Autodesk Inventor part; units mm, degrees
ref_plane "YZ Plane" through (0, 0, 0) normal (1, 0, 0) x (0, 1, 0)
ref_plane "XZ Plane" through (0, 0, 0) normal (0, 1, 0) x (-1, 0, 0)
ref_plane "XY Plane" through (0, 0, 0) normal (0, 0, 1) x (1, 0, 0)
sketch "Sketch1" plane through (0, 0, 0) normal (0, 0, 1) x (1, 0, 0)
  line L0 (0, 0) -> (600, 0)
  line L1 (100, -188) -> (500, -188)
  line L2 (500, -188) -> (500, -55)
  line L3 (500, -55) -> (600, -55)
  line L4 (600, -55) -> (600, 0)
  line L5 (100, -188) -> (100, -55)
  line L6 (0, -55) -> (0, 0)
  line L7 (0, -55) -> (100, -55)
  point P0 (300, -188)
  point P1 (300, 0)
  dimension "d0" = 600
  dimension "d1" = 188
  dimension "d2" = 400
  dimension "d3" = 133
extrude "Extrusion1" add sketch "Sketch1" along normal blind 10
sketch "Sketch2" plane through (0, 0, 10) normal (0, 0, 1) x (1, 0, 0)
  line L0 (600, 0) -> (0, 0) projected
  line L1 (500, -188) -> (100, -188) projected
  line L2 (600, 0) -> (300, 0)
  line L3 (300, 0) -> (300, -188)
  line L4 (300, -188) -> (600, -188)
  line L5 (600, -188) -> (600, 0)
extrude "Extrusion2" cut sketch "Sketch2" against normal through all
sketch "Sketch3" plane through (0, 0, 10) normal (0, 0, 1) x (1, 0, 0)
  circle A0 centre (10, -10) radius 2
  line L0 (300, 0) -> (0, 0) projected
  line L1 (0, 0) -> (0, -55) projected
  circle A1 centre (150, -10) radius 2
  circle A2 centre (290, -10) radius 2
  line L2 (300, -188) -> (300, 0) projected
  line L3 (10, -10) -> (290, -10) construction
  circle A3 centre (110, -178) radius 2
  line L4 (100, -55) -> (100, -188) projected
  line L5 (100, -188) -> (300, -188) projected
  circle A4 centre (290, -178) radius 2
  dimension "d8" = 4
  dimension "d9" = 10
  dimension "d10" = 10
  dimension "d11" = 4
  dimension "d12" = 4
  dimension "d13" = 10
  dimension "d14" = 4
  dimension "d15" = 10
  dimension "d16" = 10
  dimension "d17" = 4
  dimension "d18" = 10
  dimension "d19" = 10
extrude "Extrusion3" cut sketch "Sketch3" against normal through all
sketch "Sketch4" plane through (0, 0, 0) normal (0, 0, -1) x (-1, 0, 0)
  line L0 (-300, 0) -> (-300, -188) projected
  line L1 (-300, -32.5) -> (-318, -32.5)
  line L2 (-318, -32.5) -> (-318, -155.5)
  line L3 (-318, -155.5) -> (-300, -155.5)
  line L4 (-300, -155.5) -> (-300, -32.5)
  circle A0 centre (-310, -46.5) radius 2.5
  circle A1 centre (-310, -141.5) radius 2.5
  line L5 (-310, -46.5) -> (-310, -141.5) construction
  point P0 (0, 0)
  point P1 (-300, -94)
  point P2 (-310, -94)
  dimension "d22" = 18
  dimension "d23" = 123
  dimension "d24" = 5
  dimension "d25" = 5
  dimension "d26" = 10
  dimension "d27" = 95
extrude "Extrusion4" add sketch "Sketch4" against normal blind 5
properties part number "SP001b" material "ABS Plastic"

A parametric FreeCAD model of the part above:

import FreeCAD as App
import Part
import Sketcher

doc = App.newDocument("Part")
params = doc.addObject("Spreadsheet::Sheet", "Params")
for row, (alias, value) in enumerate([
    ("sketch1_width", "600 mm"),
    ("sketch1_width2", "400 mm"),
    ("sketch1_height", "133 mm"),
    ("pad1_length", "10 mm"),
    ("sketch2_width", "300 mm"),
    ("sketch2_height", "188 mm"),
    ("sketch3_diameter", "4 mm"),
    ("sketch4_diameter", "5 mm"),
    ("sketch4_width", "18 mm"),
    ("sketch4_height", "123 mm"),
    ("pad2_length", "5 mm"),
], start=1):
    params.set(f"A{row}", alias)
    params.set(f"B{row}", "=" + value)
    params.setAlias(f"B{row}", alias)

body = doc.addObject("PartDesign::Body", "Body")

# Sketch on XY plane
sketch1 = body.newObject("Sketcher::SketchObject", "Sketch")
sketch1.AttachmentSupport = (doc.getObject("XY_Plane"), [""])
sketch1.MapMode = "FlatFace"
sketch1.addGeometry([
    Part.LineSegment(App.Vector(600, 0, 0), App.Vector(0, 0, 0)),  # 0
    Part.LineSegment(App.Vector(0, 0, 0), App.Vector(0, -55, 0)),  # 1
    Part.LineSegment(App.Vector(0, -55, 0), App.Vector(100, -55, 0)),  # 2
    Part.LineSegment(App.Vector(100, -55, 0), App.Vector(100, -188, 0)),  # 3
    Part.LineSegment(App.Vector(100, -188, 0), App.Vector(500, -188, 0)),  # 4
    Part.LineSegment(App.Vector(500, -188, 0), App.Vector(500, -55, 0)),  # 5
    Part.LineSegment(App.Vector(500, -55, 0), App.Vector(600, -55, 0)),  # 6
    Part.LineSegment(App.Vector(600, -55, 0), App.Vector(600, 0, 0)),  # 7
], False)
sketch1.addConstraint([
    Sketcher.Constraint("Coincident", 0, 2, 1, 1),
    Sketcher.Constraint("Coincident", 1, 2, 2, 1),
    Sketcher.Constraint("Coincident", 2, 2, 3, 1),
    Sketcher.Constraint("Coincident", 3, 2, 4, 1),
    Sketcher.Constraint("Coincident", 4, 2, 5, 1),
    Sketcher.Constraint("Coincident", 5, 2, 6, 1),
    Sketcher.Constraint("Coincident", 6, 2, 7, 1),
    Sketcher.Constraint("Coincident", 7, 2, 0, 1),
    Sketcher.Constraint("Horizontal", 0),
    Sketcher.Constraint("Vertical", 1),
    Sketcher.Constraint("Horizontal", 2),
    Sketcher.Constraint("Vertical", 3),
    Sketcher.Constraint("Horizontal", 4),
    Sketcher.Constraint("Vertical", 5),
    Sketcher.Constraint("Horizontal", 6),
    Sketcher.Constraint("Vertical", 7),
    Sketcher.Constraint("Coincident", 0, 2, -1, 1),
    Sketcher.Constraint("Horizontal", 2, 2, 5, 2),
    Sketcher.Constraint("Equal", 2, 6),
    Sketcher.Constraint("DistanceX", 0, 2, 0, 1, 600.0),
    Sketcher.Constraint("DistanceX", 4, 1, 4, 2, 400.0),
    Sketcher.Constraint("DistanceY", 3, 2, 3, 1, 133.0),
    Sketcher.Constraint("DistanceY", 3, 2, -1, 1, 188.0),
])
sketch1.setExpression("Constraints[19]", "Params.sketch1_width")
sketch1.setExpression("Constraints[20]", "Params.sketch1_width2")
sketch1.setExpression("Constraints[21]", "Params.sketch1_height")
pad1 = body.newObject("PartDesign::Pad", "Pad")
pad1.Profile = sketch1
pad1.setExpression("Length", "Params.pad1_length")

# Sketch on XY plane
sketch2 = body.newObject("Sketcher::SketchObject", "Sketch001")
sketch2.AttachmentSupport = (doc.getObject("XY_Plane"), [""])
sketch2.MapMode = "FlatFace"
sketch2.AttachmentOffset = App.Placement(App.Vector(0, 0, 10), App.Rotation())
sketch2.addGeometry([
    Part.LineSegment(App.Vector(600, -188, 0), App.Vector(600, 0, 0)),
    Part.LineSegment(App.Vector(600, 0, 0), App.Vector(300, 0, 0)),
    Part.LineSegment(App.Vector(300, 0, 0), App.Vector(300, -188, 0)),
    Part.LineSegment(App.Vector(300, -188, 0), App.Vector(600, -188, 0)),
], False)
sketch2.addConstraint([
    Sketcher.Constraint("Coincident", 0, 2, 1, 1),
    Sketcher.Constraint("Coincident", 1, 2, 2, 1),
    Sketcher.Constraint("Coincident", 2, 2, 3, 1),
    Sketcher.Constraint("Coincident", 3, 2, 0, 1),
    Sketcher.Constraint("Vertical", 0),
    Sketcher.Constraint("Horizontal", 1),
    Sketcher.Constraint("Vertical", 2),
    Sketcher.Constraint("Horizontal", 3),
    Sketcher.Constraint("PointOnObject", 0, 2, -1),
    Sketcher.Constraint("DistanceX", 1, 2, 1, 1, 300.0),
    Sketcher.Constraint("DistanceY", 0, 1, 0, 2, 188.0),
    Sketcher.Constraint("DistanceX", -1, 1, 0, 2, 600.0),
])
sketch2.setExpression("Constraints[9]", "Params.sketch2_width")
sketch2.setExpression("Constraints[10]", "Params.sketch2_height")
pocket1 = body.newObject("PartDesign::Pocket", "Pocket")
pocket1.Profile = sketch2
pocket1.Type = "ThroughAll"

# Sketch on XY plane
sketch3 = body.newObject("Sketcher::SketchObject", "Sketch002")
sketch3.AttachmentSupport = (doc.getObject("XY_Plane"), [""])
sketch3.MapMode = "FlatFace"
sketch3.AttachmentOffset = App.Placement(App.Vector(0, 0, 10), App.Rotation())
sketch3.addGeometry([
    Part.Circle(App.Vector(10, -10, 0), App.Vector(0, 0, 1), 2),  # 0
    Part.Circle(App.Vector(150, -10, 0), App.Vector(0, 0, 1), 2),  # 1
    Part.Circle(App.Vector(290, -10, 0), App.Vector(0, 0, 1), 2),  # 2
    Part.Circle(App.Vector(110, -178, 0), App.Vector(0, 0, 1), 2),  # 3
    Part.Circle(App.Vector(290, -178, 0), App.Vector(0, 0, 1), 2),  # 4
], False)
sketch3.addConstraint([
    Sketcher.Constraint("Equal", 0, 1),
    Sketcher.Constraint("Equal", 1, 2),
    Sketcher.Constraint("Equal", 2, 3),
    Sketcher.Constraint("Equal", 3, 4),
    Sketcher.Constraint("Horizontal", 0, 3, 1, 3),
    Sketcher.Constraint("Horizontal", 1, 3, 2, 3),
    Sketcher.Constraint("Horizontal", 3, 3, 4, 3),
    Sketcher.Constraint("Vertical", 2, 3, 4, 3),
    Sketcher.Constraint("Diameter", 0, 4.0),
    Sketcher.Constraint("DistanceX", -1, 1, 0, 3, 10.0),
    Sketcher.Constraint("DistanceY", 0, 3, -1, 1, 10.0),
    Sketcher.Constraint("DistanceX", -1, 1, 1, 3, 150.0),
    Sketcher.Constraint("DistanceX", -1, 1, 2, 3, 290.0),
    Sketcher.Constraint("DistanceX", -1, 1, 3, 3, 110.0),
    Sketcher.Constraint("DistanceY", 3, 3, -1, 1, 178.0),
])
sketch3.setExpression("Constraints[8]", "Params.sketch3_diameter")
pocket2 = body.newObject("PartDesign::Pocket", "Pocket001")
pocket2.Profile = sketch3
pocket2.Type = "ThroughAll"

# Sketch on XY plane
sketch4 = body.newObject("Sketcher::SketchObject", "Sketch003")
sketch4.AttachmentSupport = (doc.getObject("XY_Plane"), [""])
sketch4.MapMode = "FlatFace"
sketch4.addGeometry([
    Part.LineSegment(App.Vector(300, -155.5, 0), App.Vector(300, -32.5, 0)),  # 0
    Part.LineSegment(App.Vector(300, -32.5, 0), App.Vector(318, -32.5, 0)),  # 1
    Part.LineSegment(App.Vector(318, -32.5, 0), App.Vector(318, -155.5, 0)),  # 2
    Part.LineSegment(App.Vector(318, -155.5, 0), App.Vector(300, -155.5, 0)),  # 3
    Part.Circle(App.Vector(310, -141.5, 0), App.Vector(0, 0, 1), 2.5),  # 4
    Part.Circle(App.Vector(310, -46.5, 0), App.Vector(0, 0, 1), 2.5),  # 5
], False)
sketch4.addConstraint([
    Sketcher.Constraint("Coincident", 0, 2, 1, 1),
    Sketcher.Constraint("Coincident", 1, 2, 2, 1),
    Sketcher.Constraint("Coincident", 2, 2, 3, 1),
    Sketcher.Constraint("Coincident", 3, 2, 0, 1),
    Sketcher.Constraint("Vertical", 0),
    Sketcher.Constraint("Horizontal", 1),
    Sketcher.Constraint("Vertical", 2),
    Sketcher.Constraint("Horizontal", 3),
    Sketcher.Constraint("Equal", 4, 5),
    Sketcher.Constraint("Vertical", 4, 3, 5, 3),
    Sketcher.Constraint("Diameter", 4, 5.0),
    Sketcher.Constraint("DistanceX", 1, 1, 1, 2, 18.0),
    Sketcher.Constraint("DistanceY", 0, 1, 0, 2, 123.0),
    Sketcher.Constraint("DistanceY", 4, 3, 5, 3, 95.0),
    Sketcher.Constraint("DistanceX", 0, 2, 5, 3, 10.0),
    Sketcher.Constraint("DistanceX", -1, 1, 4, 3, 310.0),
    Sketcher.Constraint("DistanceY", 5, 3, 0, 2, 14.0),
    Sketcher.Constraint("DistanceY", 4, 3, -1, 1, 141.5),
])
sketch4.setExpression("Constraints[10]", "Params.sketch4_diameter")
sketch4.setExpression("Constraints[11]", "Params.sketch4_width")
sketch4.setExpression("Constraints[12]", "Params.sketch4_height")
pad2 = body.newObject("PartDesign::Pad", "Pad001")
pad2.Profile = sketch4
pad2.setExpression("Length", "Params.pad2_length")

doc.recompute()
